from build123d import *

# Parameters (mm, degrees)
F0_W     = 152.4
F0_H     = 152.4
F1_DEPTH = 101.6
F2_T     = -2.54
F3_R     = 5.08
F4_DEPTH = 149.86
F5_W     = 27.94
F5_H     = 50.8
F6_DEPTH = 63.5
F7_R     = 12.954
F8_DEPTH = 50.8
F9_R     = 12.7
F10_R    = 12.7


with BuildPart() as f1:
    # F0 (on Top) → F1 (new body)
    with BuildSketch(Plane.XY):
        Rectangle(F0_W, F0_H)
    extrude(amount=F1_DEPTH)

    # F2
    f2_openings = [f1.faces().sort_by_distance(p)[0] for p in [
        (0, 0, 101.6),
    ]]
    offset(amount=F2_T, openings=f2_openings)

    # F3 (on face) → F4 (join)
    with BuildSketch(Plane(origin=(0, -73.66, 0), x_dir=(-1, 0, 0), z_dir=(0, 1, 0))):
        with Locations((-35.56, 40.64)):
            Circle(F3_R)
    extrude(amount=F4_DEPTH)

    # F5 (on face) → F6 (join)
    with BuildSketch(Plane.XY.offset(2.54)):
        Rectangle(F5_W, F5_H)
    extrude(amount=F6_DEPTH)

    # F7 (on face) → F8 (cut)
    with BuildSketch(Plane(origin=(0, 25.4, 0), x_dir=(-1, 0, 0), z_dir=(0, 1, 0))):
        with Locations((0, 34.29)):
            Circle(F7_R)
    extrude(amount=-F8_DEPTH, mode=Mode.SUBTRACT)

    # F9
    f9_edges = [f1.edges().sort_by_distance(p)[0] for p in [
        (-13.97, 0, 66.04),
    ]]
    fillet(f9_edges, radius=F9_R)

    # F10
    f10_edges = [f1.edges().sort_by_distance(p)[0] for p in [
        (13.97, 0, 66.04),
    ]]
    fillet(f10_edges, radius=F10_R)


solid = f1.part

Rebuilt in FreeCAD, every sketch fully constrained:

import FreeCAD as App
import Part
import Sketcher
from FreeCAD import Vector
Q = App.Units.Quantity


def edges_at(feature, points):
    """Names of the edges that pass closest to the given points."""
    edges = feature.Shape.Edges
    near = lambda p: min(range(len(edges)), key=lambda i: edges[i].distToShape(Part.Vertex(*p))[0])
    return sorted({f"Edge{near(p) + 1}" for p in points})


def faces_at(feature, points):
    """Names of the faces that lie closest to the given points."""
    faces = feature.Shape.Faces
    near = lambda p: min(range(len(faces)), key=lambda i: faces[i].distToShape(Part.Vertex(*p))[0])
    return sorted({f"Face{near(p) + 1}" for p in points})


def add_polygon(sketch, points):
    """Adds a closed chain of lines whose ends are joined by coincident constraints."""
    first, n = sketch.GeometryCount, len(points)
    for a, b in zip(points, points[1:] + points[:1]):
        sketch.addGeometry(Part.LineSegment(App.Vector(*a, 0), App.Vector(*b, 0)), False)
    for i in range(n):
        sketch.addConstraint(Sketcher.Constraint("Coincident", first + i, 2, first + (i + 1) % n, 1))

doc = App.newDocument("Part")
body = doc.addObject("PartDesign::Body", "Body")

sketch1 = doc.addObject("Sketcher::SketchObject", "Sketch")
body.addObject(sketch1)
sketch1.AttachmentSupport = (doc.XY_Plane, [""])
sketch1.MapMode = "FlatFace"
add_polygon(sketch1, [(-76, 76), (-76, -76), (76, -76), (76, 76)])
sketch1.addConstraint(Sketcher.Constraint("Vertical", 0))
sketch1.addConstraint(Sketcher.Constraint("Horizontal", 1))
sketch1.addConstraint(Sketcher.Constraint("Vertical", 2))
sketch1.addConstraint(Sketcher.Constraint("Horizontal", 3))
sketch1.addConstraint(Sketcher.Constraint("Symmetric", 0, 2, 2, 2, -1, 1))
sketch1.addConstraint(Sketcher.Constraint("Equal", 3, 0))
sketch1.addConstraint(Sketcher.Constraint("DistanceX", 1, 1, 1, 2, Q("6 in")))
pad1 = doc.addObject("PartDesign::Pad", "Pad")
body.addObject(pad1)
pad1.Profile = sketch1
pad1.Length = Q("4 in")
doc.recompute()

thickness = doc.addObject("PartDesign::Thickness", "Thickness")
body.addObject(thickness)
thickness.Base = (pad1, faces_at(pad1, [(0, 0, 101.6)]))
thickness.Value = Q("0.1 in")
thickness.Reversed = True
thickness.Join = "Arc"

sketch2 = doc.addObject("Sketcher::SketchObject", "Sketch001")
body.addObject(sketch2)
sketch2.AttachmentSupport = (doc.XZ_Plane, [""])
sketch2.MapMode = "FlatFace"
sketch2.AttachmentOffset = App.Placement(Vector(0, 0, 2.9 * 25.4), App.Rotation())
sketch2.addGeometry(Part.Circle(Vector(36, 41, 0), Vector(0, 0, 1), 5), False)
sketch2.addConstraint(Sketcher.Constraint("Diameter", 0, Q("0.4 in")))
sketch2.addConstraint(Sketcher.Constraint("DistanceX", -1, 1, 0, 3, Q("1.4 in")))
sketch2.addConstraint(Sketcher.Constraint("DistanceY", -1, 1, 0, 3, Q("1.6 in")))
pad2 = doc.addObject("PartDesign::Pad", "Pad001")
body.addObject(pad2)
pad2.Profile = sketch2
pad2.Length = Q("5.9 in")
pad2.Reversed = True

sketch3 = doc.addObject("Sketcher::SketchObject", "Sketch002")
body.addObject(sketch3)
sketch3.AttachmentSupport = (doc.XY_Plane, [""])
sketch3.MapMode = "FlatFace"
sketch3.AttachmentOffset = App.Placement(Vector(0, 0, 0.1 * 25.4), App.Rotation())
add_polygon(sketch3, [(-14, 25), (-14, -25), (14, -25), (14, 25)])
sketch3.addConstraint(Sketcher.Constraint("Vertical", 0))
sketch3.addConstraint(Sketcher.Constraint("Horizontal", 1))
sketch3.addConstraint(Sketcher.Constraint("Vertical", 2))
sketch3.addConstraint(Sketcher.Constraint("Horizontal", 3))
sketch3.addConstraint(Sketcher.Constraint("Symmetric", 0, 2, 2, 2, -1, 1))
sketch3.addConstraint(Sketcher.Constraint("DistanceY", 0, 2, 0, 1, Q("2 in")))
sketch3.addConstraint(Sketcher.Constraint("DistanceX", 1, 1, 1, 2, Q("1.1 in")))
pad3 = doc.addObject("PartDesign::Pad", "Pad002")
body.addObject(pad3)
pad3.Profile = sketch3
pad3.Length = Q("2.5 in")

sketch4 = doc.addObject("Sketcher::SketchObject", "Sketch003")
body.addObject(sketch4)
sketch4.AttachmentSupport = (doc.XZ_Plane, [""])
sketch4.MapMode = "FlatFace"
sketch4.AttachmentOffset = App.Placement(Vector(0, 0, -1 * 25.4), App.Rotation())
sketch4.addGeometry(Part.Circle(Vector(0, 34, 0), Vector(0, 0, 1), 13), False)
sketch4.addConstraint(Sketcher.Constraint("PointOnObject", 0, 3, -2))
sketch4.addConstraint(Sketcher.Constraint("Diameter", 0, Q("1.02 in")))
sketch4.addConstraint(Sketcher.Constraint("DistanceY", -1, 1, 0, 3, Q("1.35 in")))
pocket1 = doc.addObject("PartDesign::Pocket", "Pocket")
body.addObject(pocket1)
pocket1.Profile = sketch4
pocket1.Length = Q("2 in")
pocket1.Reversed = True
doc.recompute()

fillet = doc.addObject("PartDesign::Fillet", "Fillet")
body.addObject(fillet)
fillet.Base = (pocket1, edges_at(pocket1, [(-13.97, 0, 66.04)]))
fillet.Radius = Q("0.5 in")
doc.recompute()

fillet2 = doc.addObject("PartDesign::Fillet", "Fillet001")
body.addObject(fillet2)
fillet2.Base = (fillet, edges_at(fillet, [(13.97, 0, 66.04)]))
fillet2.Radius = Q("0.5 in")

doc.recompute()
